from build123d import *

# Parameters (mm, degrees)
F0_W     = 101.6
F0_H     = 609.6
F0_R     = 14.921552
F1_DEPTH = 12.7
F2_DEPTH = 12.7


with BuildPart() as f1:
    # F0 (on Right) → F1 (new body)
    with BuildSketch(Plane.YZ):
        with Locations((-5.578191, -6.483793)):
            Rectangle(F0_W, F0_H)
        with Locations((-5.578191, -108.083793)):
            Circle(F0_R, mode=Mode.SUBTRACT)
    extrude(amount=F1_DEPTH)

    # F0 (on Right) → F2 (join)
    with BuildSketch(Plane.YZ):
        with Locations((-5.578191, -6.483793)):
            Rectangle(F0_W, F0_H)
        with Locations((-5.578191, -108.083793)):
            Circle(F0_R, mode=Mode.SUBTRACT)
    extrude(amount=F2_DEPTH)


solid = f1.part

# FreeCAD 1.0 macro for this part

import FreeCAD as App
import Part
import Sketcher
from FreeCAD import Vector
Q = App.Units.Quantity


def add_polygon(sketch, points):
    """Adds a closed chain of lines whose ends are joined by coincident constraints."""
    first, n = sketch.GeometryCount, len(points)
    for a, b in zip(points, points[1:] + points[:1]):
        sketch.addGeometry(Part.LineSegment(App.Vector(*a, 0), App.Vector(*b, 0)), False)
    for i in range(n):
        sketch.addConstraint(Sketcher.Constraint("Coincident", first + i, 2, first + (i + 1) % n, 1))

doc = App.newDocument("Part")
params = doc.addObject("Spreadsheet::Sheet", "Params")
for row, (alias, value) in enumerate([
    ("sketch1_width", "4 in"),
    ("sketch1_height", "24 in"),
    ("pad1_length", "0.5 in"),
    ("sketch2_width", "4 in"),
    ("sketch2_height", "24 in"),
    ("pad2_length", "0.5 in"),
], start=1):
    params.set(f"A{row}", alias)
    params.set(f"B{row}", "=" + value)
    params.setAlias(f"B{row}", alias)

body = doc.addObject("PartDesign::Body", "Body")

sketch1 = body.newObject("Sketcher::SketchObject", "Sketch")
sketch1.AttachmentSupport = (doc.getObject("YZ_Plane"), [""])
sketch1.MapMode = "FlatFace"
add_polygon(sketch1, [(-56, 298), (-56, -311), (45, -311), (45, 298)])
sketch1.addGeometry(Part.Circle(Vector(-6, -108, 0), Vector(0, 0, 1), 15), False)
sketch1.addConstraint([
    Sketcher.Constraint("Vertical", 0),
    Sketcher.Constraint("Horizontal", 1),
    Sketcher.Constraint("Vertical", 2),
    Sketcher.Constraint("Horizontal", 3),
    Sketcher.Constraint("DistanceX", 1, 1, 1, 2, Q("4 in")),
    Sketcher.Constraint("DistanceY", 0, 2, 0, 1, Q("24 in")),
    Sketcher.Constraint("DistanceX", 0, 2, 4, 3, Q("2 in")),
    Sketcher.Constraint("DistanceY", 0, 2, 4, 3, Q("8 in")),
    Sketcher.Constraint("Diameter", 4, Q("29.843104 mm")),
    Sketcher.Constraint("DistanceX", 4, 3, -1, 1, Q("5.578191 mm")),
    Sketcher.Constraint("DistanceY", 4, 3, -1, 1, Q("108.083793 mm")),
])
sketch1.setExpression("Constraints[8]", "Params.sketch1_width")
sketch1.setExpression("Constraints[9]", "Params.sketch1_height")
pad1 = body.newObject("PartDesign::Pad", "Pad")
pad1.Profile = sketch1
pad1.setExpression("Length", "Params.pad1_length")

sketch2 = body.newObject("Sketcher::SketchObject", "Sketch001")
sketch2.AttachmentSupport = (doc.getObject("YZ_Plane"), [""])
sketch2.MapMode = "FlatFace"
add_polygon(sketch2, [(-56, 298), (-56, -311), (45, -311), (45, 298)])
sketch2.addGeometry(Part.Circle(Vector(-6, -108, 0), Vector(0, 0, 1), 15), False)
sketch2.addConstraint([
    Sketcher.Constraint("Vertical", 0),
    Sketcher.Constraint("Horizontal", 1),
    Sketcher.Constraint("Vertical", 2),
    Sketcher.Constraint("Horizontal", 3),
    Sketcher.Constraint("DistanceX", 1, 1, 1, 2, Q("4 in")),
    Sketcher.Constraint("DistanceY", 0, 2, 0, 1, Q("24 in")),
    Sketcher.Constraint("DistanceX", 0, 2, 4, 3, Q("2 in")),
    Sketcher.Constraint("DistanceY", 0, 2, 4, 3, Q("8 in")),
    Sketcher.Constraint("Diameter", 4, Q("29.843104 mm")),
    Sketcher.Constraint("DistanceX", 4, 3, -1, 1, Q("5.578191 mm")),
    Sketcher.Constraint("DistanceY", 4, 3, -1, 1, Q("108.083793 mm")),
])
sketch2.setExpression("Constraints[8]", "Params.sketch2_width")
sketch2.setExpression("Constraints[9]", "Params.sketch2_height")
pad2 = body.newObject("PartDesign::Pad", "Pad001")
pad2.Profile = sketch2
pad2.setExpression("Length", "Params.pad2_length")

doc.recompute()
